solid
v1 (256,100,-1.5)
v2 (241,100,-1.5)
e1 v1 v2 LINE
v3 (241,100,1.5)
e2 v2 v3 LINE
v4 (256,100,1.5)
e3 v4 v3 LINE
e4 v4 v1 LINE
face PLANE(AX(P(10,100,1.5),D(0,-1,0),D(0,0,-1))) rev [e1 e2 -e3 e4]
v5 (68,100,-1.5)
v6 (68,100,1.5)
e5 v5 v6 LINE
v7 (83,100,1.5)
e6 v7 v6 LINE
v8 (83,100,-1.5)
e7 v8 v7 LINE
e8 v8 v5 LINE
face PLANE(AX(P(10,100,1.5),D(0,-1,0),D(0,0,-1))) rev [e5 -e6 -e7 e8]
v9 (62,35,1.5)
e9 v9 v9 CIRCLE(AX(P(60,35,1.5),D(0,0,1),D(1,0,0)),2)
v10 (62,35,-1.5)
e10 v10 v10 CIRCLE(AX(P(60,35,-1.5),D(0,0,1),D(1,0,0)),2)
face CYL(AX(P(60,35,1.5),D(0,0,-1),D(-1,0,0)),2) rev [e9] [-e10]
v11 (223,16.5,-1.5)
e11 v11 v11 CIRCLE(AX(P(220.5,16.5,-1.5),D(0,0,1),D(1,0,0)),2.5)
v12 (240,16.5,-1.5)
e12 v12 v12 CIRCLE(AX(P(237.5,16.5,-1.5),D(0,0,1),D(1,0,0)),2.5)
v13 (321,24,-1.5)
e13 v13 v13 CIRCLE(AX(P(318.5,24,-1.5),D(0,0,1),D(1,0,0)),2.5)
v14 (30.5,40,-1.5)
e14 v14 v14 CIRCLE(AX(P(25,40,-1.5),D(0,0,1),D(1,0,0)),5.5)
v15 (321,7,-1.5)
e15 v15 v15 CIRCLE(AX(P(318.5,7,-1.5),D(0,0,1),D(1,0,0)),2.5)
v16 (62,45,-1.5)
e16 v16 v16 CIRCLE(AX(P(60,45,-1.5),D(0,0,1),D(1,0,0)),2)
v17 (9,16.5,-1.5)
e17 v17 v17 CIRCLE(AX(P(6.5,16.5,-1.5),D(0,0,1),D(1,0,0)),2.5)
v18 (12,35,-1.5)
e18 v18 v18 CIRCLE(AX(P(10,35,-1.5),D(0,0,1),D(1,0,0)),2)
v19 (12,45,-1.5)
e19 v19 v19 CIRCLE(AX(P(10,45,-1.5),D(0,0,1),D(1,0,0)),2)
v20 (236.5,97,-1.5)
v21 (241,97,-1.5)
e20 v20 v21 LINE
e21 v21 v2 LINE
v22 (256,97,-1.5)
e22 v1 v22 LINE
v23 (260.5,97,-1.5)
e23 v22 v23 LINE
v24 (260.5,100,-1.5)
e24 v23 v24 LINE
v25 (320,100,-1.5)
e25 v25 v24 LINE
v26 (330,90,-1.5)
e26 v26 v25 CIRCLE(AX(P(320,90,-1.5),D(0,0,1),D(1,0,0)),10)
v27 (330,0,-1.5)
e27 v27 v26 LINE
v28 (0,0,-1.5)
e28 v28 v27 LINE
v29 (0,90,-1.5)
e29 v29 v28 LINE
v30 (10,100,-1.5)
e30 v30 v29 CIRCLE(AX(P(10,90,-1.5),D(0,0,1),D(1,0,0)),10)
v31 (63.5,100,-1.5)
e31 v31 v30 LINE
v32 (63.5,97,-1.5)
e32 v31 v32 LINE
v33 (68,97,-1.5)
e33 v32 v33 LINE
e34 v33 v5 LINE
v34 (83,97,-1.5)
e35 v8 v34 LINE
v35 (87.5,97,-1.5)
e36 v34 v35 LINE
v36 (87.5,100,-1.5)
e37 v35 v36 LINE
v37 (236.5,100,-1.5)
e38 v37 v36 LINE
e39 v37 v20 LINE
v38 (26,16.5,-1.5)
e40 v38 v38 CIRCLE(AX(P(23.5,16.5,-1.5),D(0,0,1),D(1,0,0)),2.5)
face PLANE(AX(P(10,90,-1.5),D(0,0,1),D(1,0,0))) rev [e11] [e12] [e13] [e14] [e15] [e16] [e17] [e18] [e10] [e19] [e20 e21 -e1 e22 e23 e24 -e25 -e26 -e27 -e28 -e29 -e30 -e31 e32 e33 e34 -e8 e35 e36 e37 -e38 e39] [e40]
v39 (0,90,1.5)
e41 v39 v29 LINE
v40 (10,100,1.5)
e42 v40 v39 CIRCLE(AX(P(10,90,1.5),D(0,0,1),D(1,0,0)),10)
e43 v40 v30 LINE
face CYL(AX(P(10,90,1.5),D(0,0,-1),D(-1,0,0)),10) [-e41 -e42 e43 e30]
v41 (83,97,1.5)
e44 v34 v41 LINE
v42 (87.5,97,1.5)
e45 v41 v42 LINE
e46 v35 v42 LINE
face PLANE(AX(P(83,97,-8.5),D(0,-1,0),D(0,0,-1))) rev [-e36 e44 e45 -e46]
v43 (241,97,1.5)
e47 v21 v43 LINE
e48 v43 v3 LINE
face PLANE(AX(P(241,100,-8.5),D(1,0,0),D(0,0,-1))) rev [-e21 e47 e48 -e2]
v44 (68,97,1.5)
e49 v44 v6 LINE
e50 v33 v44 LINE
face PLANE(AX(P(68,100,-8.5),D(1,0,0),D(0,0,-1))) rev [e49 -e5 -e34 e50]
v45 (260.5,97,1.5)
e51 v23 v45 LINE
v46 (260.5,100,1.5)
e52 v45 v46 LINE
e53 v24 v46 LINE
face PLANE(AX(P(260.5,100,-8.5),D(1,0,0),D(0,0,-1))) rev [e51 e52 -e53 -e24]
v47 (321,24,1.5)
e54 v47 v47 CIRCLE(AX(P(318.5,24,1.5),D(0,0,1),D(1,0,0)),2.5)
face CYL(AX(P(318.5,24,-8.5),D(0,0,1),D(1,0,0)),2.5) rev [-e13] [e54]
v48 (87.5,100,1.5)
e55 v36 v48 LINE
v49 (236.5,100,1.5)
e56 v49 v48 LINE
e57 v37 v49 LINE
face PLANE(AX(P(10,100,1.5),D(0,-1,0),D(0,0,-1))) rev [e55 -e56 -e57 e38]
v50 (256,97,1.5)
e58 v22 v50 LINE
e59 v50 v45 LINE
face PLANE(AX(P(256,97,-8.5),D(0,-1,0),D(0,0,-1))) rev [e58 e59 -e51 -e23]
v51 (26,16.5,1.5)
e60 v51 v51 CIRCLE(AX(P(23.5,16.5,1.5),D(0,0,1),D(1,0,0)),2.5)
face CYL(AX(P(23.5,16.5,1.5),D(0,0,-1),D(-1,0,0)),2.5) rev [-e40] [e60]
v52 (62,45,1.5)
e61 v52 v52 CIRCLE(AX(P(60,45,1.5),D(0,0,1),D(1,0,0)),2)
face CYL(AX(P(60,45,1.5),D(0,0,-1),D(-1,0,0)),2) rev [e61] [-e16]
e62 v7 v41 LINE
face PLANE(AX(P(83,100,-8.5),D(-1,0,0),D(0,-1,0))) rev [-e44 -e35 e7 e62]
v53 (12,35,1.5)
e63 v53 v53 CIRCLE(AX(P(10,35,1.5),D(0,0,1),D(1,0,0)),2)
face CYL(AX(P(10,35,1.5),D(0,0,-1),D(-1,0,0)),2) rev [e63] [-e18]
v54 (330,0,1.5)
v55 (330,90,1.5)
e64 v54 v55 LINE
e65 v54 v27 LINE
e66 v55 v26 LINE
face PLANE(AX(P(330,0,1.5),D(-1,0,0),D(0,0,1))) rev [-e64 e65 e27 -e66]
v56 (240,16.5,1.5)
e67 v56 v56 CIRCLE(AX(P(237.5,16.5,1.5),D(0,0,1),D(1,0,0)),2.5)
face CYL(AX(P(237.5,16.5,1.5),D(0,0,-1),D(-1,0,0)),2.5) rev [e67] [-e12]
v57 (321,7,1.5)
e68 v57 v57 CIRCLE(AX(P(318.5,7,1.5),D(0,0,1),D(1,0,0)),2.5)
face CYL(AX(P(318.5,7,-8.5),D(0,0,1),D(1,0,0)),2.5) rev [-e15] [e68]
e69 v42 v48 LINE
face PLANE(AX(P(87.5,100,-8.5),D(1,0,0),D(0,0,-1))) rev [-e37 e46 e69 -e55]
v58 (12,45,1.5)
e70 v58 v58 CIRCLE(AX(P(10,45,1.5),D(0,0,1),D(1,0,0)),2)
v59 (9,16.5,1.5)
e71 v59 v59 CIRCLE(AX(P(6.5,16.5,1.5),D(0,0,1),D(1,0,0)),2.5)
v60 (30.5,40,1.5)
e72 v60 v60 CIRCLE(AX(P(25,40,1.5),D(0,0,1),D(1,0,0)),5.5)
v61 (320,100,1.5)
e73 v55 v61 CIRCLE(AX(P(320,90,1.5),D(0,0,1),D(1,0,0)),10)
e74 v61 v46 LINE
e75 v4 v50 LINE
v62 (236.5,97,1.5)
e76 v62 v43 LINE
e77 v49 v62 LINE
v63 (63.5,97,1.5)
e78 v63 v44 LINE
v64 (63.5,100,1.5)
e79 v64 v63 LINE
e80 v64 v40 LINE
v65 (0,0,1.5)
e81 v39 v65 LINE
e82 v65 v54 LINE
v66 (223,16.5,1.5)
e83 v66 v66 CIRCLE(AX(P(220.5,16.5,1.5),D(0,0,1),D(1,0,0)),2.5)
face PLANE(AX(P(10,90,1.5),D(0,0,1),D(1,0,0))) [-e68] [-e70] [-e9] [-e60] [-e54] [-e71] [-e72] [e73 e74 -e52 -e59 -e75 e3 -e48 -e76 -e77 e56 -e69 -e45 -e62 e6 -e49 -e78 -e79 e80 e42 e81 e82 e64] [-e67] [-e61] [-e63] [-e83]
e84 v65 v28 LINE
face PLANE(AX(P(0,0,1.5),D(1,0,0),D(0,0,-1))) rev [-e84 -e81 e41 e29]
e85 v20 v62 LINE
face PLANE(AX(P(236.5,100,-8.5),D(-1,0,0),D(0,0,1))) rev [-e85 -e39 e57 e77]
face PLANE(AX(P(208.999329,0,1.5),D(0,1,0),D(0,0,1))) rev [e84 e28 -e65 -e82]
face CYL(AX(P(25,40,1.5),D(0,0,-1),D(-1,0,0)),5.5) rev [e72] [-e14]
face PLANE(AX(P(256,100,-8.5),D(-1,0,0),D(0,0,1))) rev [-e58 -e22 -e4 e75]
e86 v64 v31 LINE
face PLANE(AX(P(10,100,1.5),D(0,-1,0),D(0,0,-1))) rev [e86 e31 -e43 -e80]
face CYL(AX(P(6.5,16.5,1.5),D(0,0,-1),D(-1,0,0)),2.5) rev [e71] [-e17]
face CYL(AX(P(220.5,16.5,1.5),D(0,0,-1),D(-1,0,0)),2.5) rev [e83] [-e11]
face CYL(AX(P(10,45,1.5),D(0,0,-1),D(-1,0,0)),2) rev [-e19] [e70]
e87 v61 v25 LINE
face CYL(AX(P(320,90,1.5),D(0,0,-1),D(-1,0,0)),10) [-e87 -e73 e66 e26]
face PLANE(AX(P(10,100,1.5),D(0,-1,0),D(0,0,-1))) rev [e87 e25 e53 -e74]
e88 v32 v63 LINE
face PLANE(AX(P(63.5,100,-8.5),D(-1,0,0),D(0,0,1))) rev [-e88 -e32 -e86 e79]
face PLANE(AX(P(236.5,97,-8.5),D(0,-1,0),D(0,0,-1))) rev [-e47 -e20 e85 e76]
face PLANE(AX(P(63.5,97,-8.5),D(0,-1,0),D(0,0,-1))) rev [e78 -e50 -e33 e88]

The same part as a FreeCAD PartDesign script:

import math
import FreeCAD as App
import Part
import Sketcher


def add_polygon(sketch, points):
    """Adds a closed chain of lines whose ends are joined by coincident constraints."""
    first, n = sketch.GeometryCount, len(points)
    for a, b in zip(points, points[1:] + points[:1]):
        sketch.addGeometry(Part.LineSegment(App.Vector(*a, 0), App.Vector(*b, 0)), False)
    for i in range(n):
        sketch.addConstraint(Sketcher.Constraint("Coincident", first + i, 2, first + (i + 1) % n, 1))

doc = App.newDocument("Part")
body = doc.addObject("PartDesign::Body", "Body")

# Sketch on XY plane
sketch1 = body.newObject("Sketcher::SketchObject", "Sketch")
sketch1.AttachmentSupport = (doc.getObject("XY_Plane"), [""])
sketch1.MapMode = "FlatFace"
sketch1.addGeometry([
    Part.LineSegment(App.Vector(330, 0, 0), App.Vector(330, 90, 0)),  # 0
    Part.ArcOfCircle(Part.Circle(App.Vector(320, 90, 0), App.Vector(0, 0, 1), 10), math.radians(0), math.radians(90)),  # 1
    Part.LineSegment(App.Vector(320, 100, 0), App.Vector(10, 100, 0)),  # 2
    Part.ArcOfCircle(Part.Circle(App.Vector(10, 90, 0), App.Vector(0, 0, 1), 10), math.radians(90), math.radians(180)),  # 3
    Part.LineSegment(App.Vector(0, 90, 0), App.Vector(0, 0, 0)),  # 4
    Part.LineSegment(App.Vector(0, 0, 0), App.Vector(330, 0, 0)),  # 5
    Part.Circle(App.Vector(6.5, 16.5, 0), App.Vector(0, 0, 1), 2.5),  # 6
    Part.Circle(App.Vector(23.5, 16.5, 0), App.Vector(0, 0, 1), 2.5),  # 7
    Part.Circle(App.Vector(220.5, 16.5, 0), App.Vector(0, 0, 1), 2.5),  # 8
    Part.Circle(App.Vector(237.5, 16.5, 0), App.Vector(0, 0, 1), 2.5),  # 9
    Part.Circle(App.Vector(10, 35, 0), App.Vector(0, 0, 1), 2),  # 10
    Part.Circle(App.Vector(60, 35, 0), App.Vector(0, 0, 1), 2),  # 11
    Part.Circle(App.Vector(25, 40, 0), App.Vector(0, 0, 1), 5.5),  # 12
    Part.Circle(App.Vector(10, 45, 0), App.Vector(0, 0, 1), 2),  # 13
    Part.Circle(App.Vector(60, 45, 0), App.Vector(0, 0, 1), 2),  # 14
], False)
sketch1.addConstraint([
    Sketcher.Constraint("Tangent", 0, 2, 1, 1),
    Sketcher.Constraint("Tangent", 1, 2, 2, 1),
    Sketcher.Constraint("Tangent", 2, 2, 3, 1),
    Sketcher.Constraint("Tangent", 3, 2, 4, 1),
    Sketcher.Constraint("Coincident", 4, 2, 5, 1),
    Sketcher.Constraint("Coincident", 5, 2, 0, 1),
    Sketcher.Constraint("Vertical", 0),
    Sketcher.Constraint("Horizontal", 2),
    Sketcher.Constraint("Vertical", 4),
    Sketcher.Constraint("Horizontal", 5),
    Sketcher.Constraint("Coincident", 4, 2, -1, 1),
    Sketcher.Constraint("Equal", 1, 3),
    Sketcher.Constraint("Equal", 6, 7),
    Sketcher.Constraint("Equal", 7, 8),
    Sketcher.Constraint("Equal", 8, 9),
    Sketcher.Constraint("Equal", 10, 11),
    Sketcher.Constraint("Equal", 11, 13),
    Sketcher.Constraint("Equal", 13, 14),
    Sketcher.Constraint("Horizontal", 6, 3, 7, 3),
    Sketcher.Constraint("Horizontal", 7, 3, 8, 3),
    Sketcher.Constraint("Horizontal", 8, 3, 9, 3),
    Sketcher.Constraint("Horizontal", 10, 3, 11, 3),
    Sketcher.Constraint("Horizontal", 13, 3, 14, 3),
    Sketcher.Constraint("Vertical", 3, 3, 10, 3),
    Sketcher.Constraint("Vertical", 10, 3, 13, 3),
    Sketcher.Constraint("Vertical", 11, 3, 14, 3),
    Sketcher.Constraint("Diameter", 6, 5.0),
    Sketcher.Constraint("Diameter", 10, 4.0),
    Sketcher.Constraint("Diameter", 12, 11.0),
    Sketcher.Constraint("Radius", 1, 10.0),
    Sketcher.Constraint("DistanceX", 2, 2, 2, 1, 310.0),
    Sketcher.Constraint("DistanceY", 0, 1, 0, 2, 90.0),
    Sketcher.Constraint("DistanceY", -1, 1, 10, 3, 35.0),
    Sketcher.Constraint("DistanceX", -1, 1, 11, 3, 60.0),
    Sketcher.Constraint("DistanceX", -1, 1, 12, 3, 25.0),
    Sketcher.Constraint("DistanceY", -1, 1, 12, 3, 40.0),
    Sketcher.Constraint("DistanceY", -1, 1, 13, 3, 45.0),
    Sketcher.Constraint("DistanceX", 6, 3, 7, 3, 17.0),
    Sketcher.Constraint("DistanceX", 7, 3, 8, 3, 197.0),
    Sketcher.Constraint("DistanceX", 8, 3, 9, 3, 17.0),
    Sketcher.Constraint("DistanceX", -1, 1, 6, 3, 6.5),
    Sketcher.Constraint("DistanceY", -1, 1, 6, 3, 16.5),
])
pad1 = body.newObject("PartDesign::Pad", "Pad")
pad1.Profile = sketch1
pad1.Length = 3
pad1.Midplane = True

# Sketch on XY plane
sketch2 = body.newObject("Sketcher::SketchObject", "Sketch001")
sketch2.AttachmentSupport = (doc.getObject("XY_Plane"), [""])
sketch2.MapMode = "FlatFace"
sketch2.AttachmentOffset = App.Placement(App.Vector(0, 0, 1.5), App.Rotation())
sketch2.addGeometry([
    Part.Circle(App.Vector(318.5, 24, 0), App.Vector(0, 0, 1), 2.5),
    Part.Circle(App.Vector(318.5, 7, 0), App.Vector(0, 0, 1), 2.5),
], False)
sketch2.addConstraint([
    Sketcher.Constraint("Equal", 0, 1),
    Sketcher.Constraint("Vertical", 0, 3, 1, 3),
    Sketcher.Constraint("Diameter", 0, 5.0),
    Sketcher.Constraint("DistanceY", -1, 1, 0, 3, 24.0),
    Sketcher.Constraint("DistanceY", -1, 1, 1, 3, 7.0),
    Sketcher.Constraint("DistanceX", -1, 1, 0, 3, 318.5),
])
pocket1 = body.newObject("PartDesign::Pocket", "Pocket")
pocket1.Profile = sketch2
pocket1.Length = 10

# Sketch on XY plane
sketch3 = body.newObject("Sketcher::SketchObject", "Sketch002")
sketch3.AttachmentSupport = (doc.getObject("XY_Plane"), [""])
sketch3.MapMode = "FlatFace"
sketch3.AttachmentOffset = App.Placement(App.Vector(0, 0, 1.5), App.Rotation())
add_polygon(sketch3, [(63.5, 100), (63.5, 97), (68, 97), (68, 100)])  # lines 0-3
add_polygon(sketch3, [(256, 100), (256, 97), (260.5, 97), (260.5, 100)])  # lines 4-7
sketch3.addConstraint([
    Sketcher.Constraint("Vertical", 0),
    Sketcher.Constraint("Horizontal", 1),
    Sketcher.Constraint("Vertical", 2),
    Sketcher.Constraint("Horizontal", 3),
    Sketcher.Constraint("Vertical", 4),
    Sketcher.Constraint("Horizontal", 5),
    Sketcher.Constraint("Vertical", 6),
    Sketcher.Constraint("Horizontal", 7),
    Sketcher.Constraint("Horizontal", 1, 2, 4, 2),
    Sketcher.Constraint("Horizontal", 3, 2, 6, 2),
    Sketcher.Constraint("Equal", 3, 5),
    Sketcher.Constraint("DistanceY", 0, 2, 0, 1, 3.0),
    Sketcher.Constraint("DistanceX", 1, 1, 1, 2, 4.5),
    Sketcher.Constraint("DistanceY", -1, 1, 0, 2, 97.0),
    Sketcher.Constraint("DistanceX", -1, 1, 1, 2, 68.0),
    Sketcher.Constraint("DistanceX", -1, 1, 4, 2, 256.0),
])
pocket2 = body.newObject("PartDesign::Pocket", "Pocket001")
pocket2.Profile = sketch3
pocket2.Length = 10

# Sketch on XY plane
sketch4 = body.newObject("Sketcher::SketchObject", "Sketch003")
sketch4.AttachmentSupport = (doc.getObject("XY_Plane"), [""])
sketch4.MapMode = "FlatFace"
sketch4.AttachmentOffset = App.Placement(App.Vector(0, 0, 1.5), App.Rotation())
add_polygon(sketch4, [(83, 100), (83, 97), (87.5, 97), (87.5, 100)])  # lines 0-3
add_polygon(sketch4, [(236.5, 100), (236.5, 97), (241, 97), (241, 100)])  # lines 4-7
sketch4.addConstraint([
    Sketcher.Constraint("Vertical", 0),
    Sketcher.Constraint("Horizontal", 1),
    Sketcher.Constraint("Vertical", 2),
    Sketcher.Constraint("Horizontal", 3),
    Sketcher.Constraint("Vertical", 4),
    Sketcher.Constraint("Horizontal", 5),
    Sketcher.Constraint("Vertical", 6),
    Sketcher.Constraint("Horizontal", 7),
    Sketcher.Constraint("Horizontal", 1, 2, 4, 2),
    Sketcher.Constraint("Horizontal", 3, 2, 6, 2),
    Sketcher.Constraint("Equal", 3, 5),
    Sketcher.Constraint("DistanceY", 0, 2, 0, 1, 3.0),
    Sketcher.Constraint("DistanceX", 1, 1, 1, 2, 4.5),
    Sketcher.Constraint("DistanceX", -1, 1, 0, 2, 83.0),
    Sketcher.Constraint("DistanceY", -1, 1, 0, 2, 97.0),
    Sketcher.Constraint("DistanceX", -1, 1, 5, 2, 241.0),
])
pocket3 = body.newObject("PartDesign::Pocket", "Pocket002")
pocket3.Profile = sketch4
pocket3.Length = 10

doc.recompute()
